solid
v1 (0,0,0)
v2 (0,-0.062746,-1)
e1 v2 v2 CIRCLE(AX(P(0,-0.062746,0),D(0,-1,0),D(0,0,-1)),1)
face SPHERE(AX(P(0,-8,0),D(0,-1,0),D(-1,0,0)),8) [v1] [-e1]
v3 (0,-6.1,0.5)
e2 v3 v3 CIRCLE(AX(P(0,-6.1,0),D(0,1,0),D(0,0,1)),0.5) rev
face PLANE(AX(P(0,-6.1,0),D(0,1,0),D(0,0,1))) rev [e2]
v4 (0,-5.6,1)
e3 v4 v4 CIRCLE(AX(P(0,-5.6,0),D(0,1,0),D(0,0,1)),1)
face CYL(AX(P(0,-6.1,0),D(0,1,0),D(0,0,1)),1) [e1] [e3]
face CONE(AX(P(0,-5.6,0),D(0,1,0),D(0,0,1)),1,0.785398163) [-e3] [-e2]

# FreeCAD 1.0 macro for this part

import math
import FreeCAD as App
import Part
import Sketcher
Q = App.Units.Quantity


def edges_at(feature, points):
    """Names of the edges that pass closest to the given points."""
    edges = feature.Shape.Edges
    near = lambda p: min(range(len(edges)), key=lambda i: edges[i].distToShape(Part.Vertex(*p))[0])
    return sorted({f"Edge{near(p) + 1}" for p in points})

doc = App.newDocument("Part")
body = doc.addObject("PartDesign::Body", "Body")

sketch1 = body.newObject("Sketcher::SketchObject", "Sketch")
sketch1.AttachmentSupport = (doc.getObject("XZ_Plane"), [""])
sketch1.MapMode = "FlatFace"
sketch1.addGeometry(Part.Circle(App.Vector(0, 0, 0), App.Vector(0, 0, 1), 1), False)
sketch1.addConstraint([
    Sketcher.Constraint("Coincident", 0, 3, -1, 1),
    Sketcher.Constraint("Diameter", 0, Q("2 mm")),
])
pad1 = body.newObject("PartDesign::Pad", "Pad")
pad1.Profile = sketch1
pad1.Length = 6.1
doc.recompute()

chamfer = body.newObject("PartDesign::Chamfer", "Chamfer")
chamfer.Base = (pad1, edges_at(pad1, [(-1, -6.1, 0)]))
chamfer.Size = 0.5

sketch2 = body.newObject("Sketcher::SketchObject", "Sketch001")
sketch2.AttachmentSupport = (doc.getObject("XY_Plane"), [""])
sketch2.MapMode = "FlatFace"
sketch2.addGeometry([
    Part.LineSegment(App.Vector(0, 2, 0), App.Vector(-2, 2, 0)),
    Part.LineSegment(App.Vector(-2, 2, 0), App.Vector(-2, -0.3, 0)),
    Part.ArcOfCircle(Part.Circle(App.Vector(0, -8, 0), App.Vector(0, 0, 1), 8), math.radians(90), math.radians(104.48)),
    Part.LineSegment(App.Vector(0, 0, 0), App.Vector(0, 2, 0)),
], False)
sketch2.addConstraint([
    Sketcher.Constraint("Coincident", 0, 2, 1, 1),
    Sketcher.Constraint("Coincident", 1, 2, 2, 2),
    Sketcher.Constraint("Coincident", 2, 1, 3, 1),
    Sketcher.Constraint("Coincident", 3, 2, 0, 1),
    Sketcher.Constraint("Horizontal", 0),
    Sketcher.Constraint("Vertical", 1),
    Sketcher.Constraint("Vertical", 3),
    Sketcher.Constraint("Coincident", 2, 1, -1, 1),
    Sketcher.Constraint("PointOnObject", 2, 3, -2),
    Sketcher.Constraint("Equal", 0, 3),
    Sketcher.Constraint("Radius", 2, Q("8 mm")),
    Sketcher.Constraint("DistanceX", 0, 2, 0, 1, Q("2 mm")),
])
groove = body.newObject("PartDesign::Groove", "Groove")
groove.Profile = sketch2
groove.ReferenceAxis = (sketch2, ["V_Axis"])
groove.Angle = 360

doc.recompute()
